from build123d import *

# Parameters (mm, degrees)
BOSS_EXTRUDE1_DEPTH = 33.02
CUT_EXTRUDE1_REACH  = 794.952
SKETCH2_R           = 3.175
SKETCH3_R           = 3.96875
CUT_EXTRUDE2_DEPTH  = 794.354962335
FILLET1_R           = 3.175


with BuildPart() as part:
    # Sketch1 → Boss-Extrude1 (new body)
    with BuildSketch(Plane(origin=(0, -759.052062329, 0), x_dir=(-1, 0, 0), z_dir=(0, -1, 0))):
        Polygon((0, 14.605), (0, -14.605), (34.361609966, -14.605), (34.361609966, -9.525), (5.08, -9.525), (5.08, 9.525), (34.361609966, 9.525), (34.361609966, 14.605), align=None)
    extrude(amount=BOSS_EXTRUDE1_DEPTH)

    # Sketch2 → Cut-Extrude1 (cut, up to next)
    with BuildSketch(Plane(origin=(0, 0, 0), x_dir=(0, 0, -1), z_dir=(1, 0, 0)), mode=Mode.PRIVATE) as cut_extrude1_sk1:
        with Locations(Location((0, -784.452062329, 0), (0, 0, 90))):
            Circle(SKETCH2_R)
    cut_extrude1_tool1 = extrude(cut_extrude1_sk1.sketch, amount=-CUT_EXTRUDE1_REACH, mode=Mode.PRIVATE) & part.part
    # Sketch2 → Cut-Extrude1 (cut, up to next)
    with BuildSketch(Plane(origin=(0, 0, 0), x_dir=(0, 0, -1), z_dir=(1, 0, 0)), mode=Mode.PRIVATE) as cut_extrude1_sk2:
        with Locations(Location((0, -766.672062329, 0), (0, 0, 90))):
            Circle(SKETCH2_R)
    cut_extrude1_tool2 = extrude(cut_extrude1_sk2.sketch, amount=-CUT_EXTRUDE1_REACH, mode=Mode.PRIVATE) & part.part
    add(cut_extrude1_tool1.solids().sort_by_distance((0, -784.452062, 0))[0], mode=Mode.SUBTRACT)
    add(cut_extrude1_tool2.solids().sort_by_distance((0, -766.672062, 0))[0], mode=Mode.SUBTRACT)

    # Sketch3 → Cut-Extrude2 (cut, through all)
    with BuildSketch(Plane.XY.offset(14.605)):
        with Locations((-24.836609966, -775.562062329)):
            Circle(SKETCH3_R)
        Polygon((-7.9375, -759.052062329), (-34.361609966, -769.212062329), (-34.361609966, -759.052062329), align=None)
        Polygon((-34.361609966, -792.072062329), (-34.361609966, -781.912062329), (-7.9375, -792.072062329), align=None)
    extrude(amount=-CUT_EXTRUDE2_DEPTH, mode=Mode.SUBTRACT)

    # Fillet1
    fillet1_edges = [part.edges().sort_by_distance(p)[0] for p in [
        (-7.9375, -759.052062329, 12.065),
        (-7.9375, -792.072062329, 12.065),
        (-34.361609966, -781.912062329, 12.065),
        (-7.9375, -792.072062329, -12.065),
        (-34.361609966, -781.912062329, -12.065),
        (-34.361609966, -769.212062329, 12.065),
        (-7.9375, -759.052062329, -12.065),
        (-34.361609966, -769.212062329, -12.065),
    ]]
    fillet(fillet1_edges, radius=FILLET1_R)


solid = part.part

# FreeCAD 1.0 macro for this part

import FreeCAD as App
import Part
import Sketcher
from FreeCAD import Vector
Q = App.Units.Quantity


def edges_at(feature, points):
    """Names of the edges that pass closest to the given points."""
    edges = feature.Shape.Edges
    near = lambda p: min(range(len(edges)), key=lambda i: edges[i].distToShape(Part.Vertex(*p))[0])
    return sorted({f"Edge{near(p) + 1}" for p in points})

doc = App.newDocument("Part")
params = doc.addObject("Spreadsheet::Sheet", "Params")
for row, (alias, value) in enumerate([
    ("sketch1_height", "0.2 in"),
    ("sketch1_height2", "1.15 in"),
    ("pad1_length", "1.3 in"),
    ("sketch2_diameter", "0.25 in"),
    ("sketch3_diameter", "0.25 in"),
    ("sketch4_diameter", "0.3125 in"),
    ("sketch4_height", "0.4 in"),
    ("fillet_radius", "0.125 in"),
], start=1):
    params.set(f"A{row}", alias)
    params.set(f"B{row}", "=" + value)
    params.setAlias(f"B{row}", alias)

body = doc.addObject("PartDesign::Body", "Body")

# Sketch on XZ plane
sketch1 = body.newObject("Sketcher::SketchObject", "Sketch")
sketch1.AttachmentSupport = (doc.getObject("XZ_Plane"), [""])
sketch1.MapMode = "FlatFace"
sketch1.AttachmentOffset = App.Placement(Vector(0, 0, 759.052062), App.Rotation())
sketch1.addGeometry(Part.LineSegment(Vector(0, -14.605, 0), Vector(0, 14.605, 0)), False)
sketch1.addGeometry(Part.LineSegment(Vector(0, 14.605, 0), Vector(-34.36161, 14.605, 0)), False)
sketch1.addGeometry(Part.LineSegment(Vector(-34.36161, 14.605, 0), Vector(-34.36161, 9.525, 0)), False)
sketch1.addGeometry(Part.LineSegment(Vector(-34.36161, 9.525, 0), Vector(-5.08, 9.525, 0)), False)
sketch1.addGeometry(Part.LineSegment(Vector(-5.08, 9.525, 0), Vector(-5.08, -9.525, 0)), False)
sketch1.addGeometry(Part.LineSegment(Vector(-5.08, -9.525, 0), Vector(-34.36161, -9.525, 0)), False)
sketch1.addGeometry(Part.LineSegment(Vector(-34.36161, -9.525, 0), Vector(-34.36161, -14.605, 0)), False)
sketch1.addGeometry(Part.LineSegment(Vector(-34.36161, -14.605, 0), Vector(0, -14.605, 0)), False)
sketch1.addConstraint(Sketcher.Constraint("Coincident", 0, 2, 1, 1))
sketch1.addConstraint(Sketcher.Constraint("Coincident", 1, 2, 2, 1))
sketch1.addConstraint(Sketcher.Constraint("Coincident", 2, 2, 3, 1))
sketch1.addConstraint(Sketcher.Constraint("Coincident", 3, 2, 4, 1))
sketch1.addConstraint(Sketcher.Constraint("Coincident", 4, 2, 5, 1))
sketch1.addConstraint(Sketcher.Constraint("Coincident", 5, 2, 6, 1))
sketch1.addConstraint(Sketcher.Constraint("Coincident", 6, 2, 7, 1))
sketch1.addConstraint(Sketcher.Constraint("Coincident", 7, 2, 0, 1))
sketch1.addConstraint(Sketcher.Constraint("Vertical", 0))
sketch1.addConstraint(Sketcher.Constraint("Horizontal", 1))
sketch1.addConstraint(Sketcher.Constraint("Vertical", 2))
sketch1.addConstraint(Sketcher.Constraint("Horizontal", 3))
sketch1.addConstraint(Sketcher.Constraint("Vertical", 4))
sketch1.addConstraint(Sketcher.Constraint("Horizontal", 5))
sketch1.addConstraint(Sketcher.Constraint("Vertical", 6))
sketch1.addConstraint(Sketcher.Constraint("Horizontal", 7))
sketch1.addConstraint(Sketcher.Constraint("Symmetric", 0, 2, 7, 2, -1, 1))
sketch1.addConstraint(Sketcher.Constraint("Symmetric", 2, 2, 5, 2, -1))
sketch1.addConstraint(Sketcher.Constraint("DistanceY", 2, 2, 2, 1, Q("0.2 in")))
sketch1.addConstraint(Sketcher.Constraint("DistanceY", 0, 1, 0, 2, Q("1.15 in")))
sketch1.addConstraint(Sketcher.Constraint("DistanceX", 3, 2, -1, 1, Q("0.2 in")))
sketch1.addConstraint(Sketcher.Constraint("DistanceX", 1, 2, 1, 1, Q("34.36161 mm")))
sketch1.setExpression("Constraints[18]", "Params.sketch1_height")
sketch1.setExpression("Constraints[19]", "Params.sketch1_height2")
pad1 = body.newObject("PartDesign::Pad", "Pad")
pad1.Profile = sketch1
pad1.setExpression("Length", "Params.pad1_length")

# Sketch on YZ plane
sketch2 = body.newObject("Sketcher::SketchObject", "Sketch001")
sketch2.AttachmentSupport = (doc.getObject("YZ_Plane"), [""])
sketch2.MapMode = "FlatFace"
sketch2.addGeometry(Part.Circle(Vector(-784.452062, 0, 0), Vector(0, 0, 1), 3.175), False)
sketch2.addConstraint(Sketcher.Constraint("PointOnObject", 0, 3, -1))
sketch2.addConstraint(Sketcher.Constraint("Diameter", 0, Q("0.25 in")))
sketch2.addConstraint(Sketcher.Constraint("DistanceX", 0, 3, -1, 1, Q("784.452062 mm")))
sketch2.setExpression("Constraints[1]", "Params.sketch2_diameter")
pocket1 = body.newObject("PartDesign::Pocket", "Pocket")
pocket1.Profile = sketch2
pocket1.Type = "UpToFirst"

# Sketch on YZ plane
sketch3 = body.newObject("Sketcher::SketchObject", "Sketch002")
sketch3.AttachmentSupport = (doc.getObject("YZ_Plane"), [""])
sketch3.MapMode = "FlatFace"
sketch3.addGeometry(Part.Circle(Vector(-766.672062, 0, 0), Vector(0, 0, 1), 3.175), False)
sketch3.addConstraint(Sketcher.Constraint("PointOnObject", 0, 3, -1))
sketch3.addConstraint(Sketcher.Constraint("Diameter", 0, Q("0.25 in")))
sketch3.addConstraint(Sketcher.Constraint("DistanceX", 0, 3, -1, 1, Q("766.672062 mm")))
sketch3.setExpression("Constraints[1]", "Params.sketch3_diameter")
pocket2 = body.newObject("PartDesign::Pocket", "Pocket001")
pocket2.Profile = sketch3
pocket2.Type = "UpToFirst"

# Sketch on XY plane
sketch4 = body.newObject("Sketcher::SketchObject", "Sketch003")
sketch4.AttachmentSupport = (doc.getObject("XY_Plane"), [""])
sketch4.MapMode = "FlatFace"
sketch4.AttachmentOffset = App.Placement(Vector(0, 0, 0.575 * 25.4), App.Rotation())
sketch4.addGeometry(Part.Circle(Vector(-24.83661, -775.562062, 0), Vector(0, 0, 1), 3.96875), False)
sketch4.addGeometry(Part.LineSegment(Vector(-34.36161, -769.212062, 0), Vector(-7.9375, -759.052062, 0)), False)
sketch4.addGeometry(Part.LineSegment(Vector(-7.9375, -759.052062, 0), Vector(-34.36161, -759.052062, 0)), False)
sketch4.addGeometry(Part.LineSegment(Vector(-34.36161, -759.052062, 0), Vector(-34.36161, -769.212062, 0)), False)
sketch4.addGeometry(Part.LineSegment(Vector(-34.36161, -781.912062, 0), Vector(-34.36161, -792.072062, 0)), False)
sketch4.addGeometry(Part.LineSegment(Vector(-34.36161, -792.072062, 0), Vector(-7.9375, -792.072062, 0)), False)
sketch4.addGeometry(Part.LineSegment(Vector(-7.9375, -792.072062, 0), Vector(-34.36161, -781.912062, 0)), False)
sketch4.addConstraint(Sketcher.Constraint("Coincident", 1, 2, 2, 1))
sketch4.addConstraint(Sketcher.Constraint("Coincident", 2, 2, 3, 1))
sketch4.addConstraint(Sketcher.Constraint("Coincident", 3, 2, 1, 1))
sketch4.addConstraint(Sketcher.Constraint("Coincident", 4, 2, 5, 1))
sketch4.addConstraint(Sketcher.Constraint("Coincident", 5, 2, 6, 1))
sketch4.addConstraint(Sketcher.Constraint("Coincident", 6, 2, 4, 1))
sketch4.addConstraint(Sketcher.Constraint("Horizontal", 2))
sketch4.addConstraint(Sketcher.Constraint("Vertical", 3))
sketch4.addConstraint(Sketcher.Constraint("Vertical", 4))
sketch4.addConstraint(Sketcher.Constraint("Horizontal", 5))
sketch4.addConstraint(Sketcher.Constraint("Vertical", 3, 2, 4, 2))
sketch4.addConstraint(Sketcher.Constraint("Vertical", 1, 2, 5, 2))
sketch4.addConstraint(Sketcher.Constraint("Equal", 3, 4))
sketch4.addConstraint(Sketcher.Constraint("Diameter", 0, Q("0.3125 in")))
sketch4.addConstraint(Sketcher.Constraint("DistanceY", 3, 2, 3, 1, Q("0.4 in")))
sketch4.addConstraint(Sketcher.Constraint("DistanceY", 4, 2, 3, 2, Q("0.9 in")))
sketch4.addConstraint(Sketcher.Constraint("DistanceY", 0, 3, 1, 2, Q("0.65 in")))
sketch4.addConstraint(Sketcher.Constraint("DistanceX", 1, 2, -1, 1, Q("0.3125 in")))
sketch4.addConstraint(Sketcher.Constraint("DistanceX", 2, 2, 0, 3, Q("0.375 in")))
sketch4.addConstraint(Sketcher.Constraint("DistanceX", 2, 2, 2, 1, Q("26.42411 mm")))
sketch4.addConstraint(Sketcher.Constraint("DistanceY", 0, 3, -1, 1, Q("775.562062 mm")))
sketch4.setExpression("Constraints[13]", "Params.sketch4_diameter")
sketch4.setExpression("Constraints[14]", "Params.sketch4_height")
pocket3 = body.newObject("PartDesign::Pocket", "Pocket002")
pocket3.Profile = sketch4
pocket3.Type = "ThroughAll"
doc.recompute()

fillet = body.newObject("PartDesign::Fillet", "Fillet")
fillet.Base = (pocket3, edges_at(pocket3, [
    (-7.938, -759.052, 12.065),
    (-7.938, -792.072, 12.065),
    (-34.362, -781.912, 12.065),
    (-7.938, -792.072, -12.065),
    (-34.362, -781.912, -12.065),
    (-34.362, -769.212, 12.065),
    (-7.938, -759.052, -12.065),
    (-34.362, -769.212, -12.065),
]))
fillet.setExpression("Radius", "Params.fillet_radius")

doc.recompute()
